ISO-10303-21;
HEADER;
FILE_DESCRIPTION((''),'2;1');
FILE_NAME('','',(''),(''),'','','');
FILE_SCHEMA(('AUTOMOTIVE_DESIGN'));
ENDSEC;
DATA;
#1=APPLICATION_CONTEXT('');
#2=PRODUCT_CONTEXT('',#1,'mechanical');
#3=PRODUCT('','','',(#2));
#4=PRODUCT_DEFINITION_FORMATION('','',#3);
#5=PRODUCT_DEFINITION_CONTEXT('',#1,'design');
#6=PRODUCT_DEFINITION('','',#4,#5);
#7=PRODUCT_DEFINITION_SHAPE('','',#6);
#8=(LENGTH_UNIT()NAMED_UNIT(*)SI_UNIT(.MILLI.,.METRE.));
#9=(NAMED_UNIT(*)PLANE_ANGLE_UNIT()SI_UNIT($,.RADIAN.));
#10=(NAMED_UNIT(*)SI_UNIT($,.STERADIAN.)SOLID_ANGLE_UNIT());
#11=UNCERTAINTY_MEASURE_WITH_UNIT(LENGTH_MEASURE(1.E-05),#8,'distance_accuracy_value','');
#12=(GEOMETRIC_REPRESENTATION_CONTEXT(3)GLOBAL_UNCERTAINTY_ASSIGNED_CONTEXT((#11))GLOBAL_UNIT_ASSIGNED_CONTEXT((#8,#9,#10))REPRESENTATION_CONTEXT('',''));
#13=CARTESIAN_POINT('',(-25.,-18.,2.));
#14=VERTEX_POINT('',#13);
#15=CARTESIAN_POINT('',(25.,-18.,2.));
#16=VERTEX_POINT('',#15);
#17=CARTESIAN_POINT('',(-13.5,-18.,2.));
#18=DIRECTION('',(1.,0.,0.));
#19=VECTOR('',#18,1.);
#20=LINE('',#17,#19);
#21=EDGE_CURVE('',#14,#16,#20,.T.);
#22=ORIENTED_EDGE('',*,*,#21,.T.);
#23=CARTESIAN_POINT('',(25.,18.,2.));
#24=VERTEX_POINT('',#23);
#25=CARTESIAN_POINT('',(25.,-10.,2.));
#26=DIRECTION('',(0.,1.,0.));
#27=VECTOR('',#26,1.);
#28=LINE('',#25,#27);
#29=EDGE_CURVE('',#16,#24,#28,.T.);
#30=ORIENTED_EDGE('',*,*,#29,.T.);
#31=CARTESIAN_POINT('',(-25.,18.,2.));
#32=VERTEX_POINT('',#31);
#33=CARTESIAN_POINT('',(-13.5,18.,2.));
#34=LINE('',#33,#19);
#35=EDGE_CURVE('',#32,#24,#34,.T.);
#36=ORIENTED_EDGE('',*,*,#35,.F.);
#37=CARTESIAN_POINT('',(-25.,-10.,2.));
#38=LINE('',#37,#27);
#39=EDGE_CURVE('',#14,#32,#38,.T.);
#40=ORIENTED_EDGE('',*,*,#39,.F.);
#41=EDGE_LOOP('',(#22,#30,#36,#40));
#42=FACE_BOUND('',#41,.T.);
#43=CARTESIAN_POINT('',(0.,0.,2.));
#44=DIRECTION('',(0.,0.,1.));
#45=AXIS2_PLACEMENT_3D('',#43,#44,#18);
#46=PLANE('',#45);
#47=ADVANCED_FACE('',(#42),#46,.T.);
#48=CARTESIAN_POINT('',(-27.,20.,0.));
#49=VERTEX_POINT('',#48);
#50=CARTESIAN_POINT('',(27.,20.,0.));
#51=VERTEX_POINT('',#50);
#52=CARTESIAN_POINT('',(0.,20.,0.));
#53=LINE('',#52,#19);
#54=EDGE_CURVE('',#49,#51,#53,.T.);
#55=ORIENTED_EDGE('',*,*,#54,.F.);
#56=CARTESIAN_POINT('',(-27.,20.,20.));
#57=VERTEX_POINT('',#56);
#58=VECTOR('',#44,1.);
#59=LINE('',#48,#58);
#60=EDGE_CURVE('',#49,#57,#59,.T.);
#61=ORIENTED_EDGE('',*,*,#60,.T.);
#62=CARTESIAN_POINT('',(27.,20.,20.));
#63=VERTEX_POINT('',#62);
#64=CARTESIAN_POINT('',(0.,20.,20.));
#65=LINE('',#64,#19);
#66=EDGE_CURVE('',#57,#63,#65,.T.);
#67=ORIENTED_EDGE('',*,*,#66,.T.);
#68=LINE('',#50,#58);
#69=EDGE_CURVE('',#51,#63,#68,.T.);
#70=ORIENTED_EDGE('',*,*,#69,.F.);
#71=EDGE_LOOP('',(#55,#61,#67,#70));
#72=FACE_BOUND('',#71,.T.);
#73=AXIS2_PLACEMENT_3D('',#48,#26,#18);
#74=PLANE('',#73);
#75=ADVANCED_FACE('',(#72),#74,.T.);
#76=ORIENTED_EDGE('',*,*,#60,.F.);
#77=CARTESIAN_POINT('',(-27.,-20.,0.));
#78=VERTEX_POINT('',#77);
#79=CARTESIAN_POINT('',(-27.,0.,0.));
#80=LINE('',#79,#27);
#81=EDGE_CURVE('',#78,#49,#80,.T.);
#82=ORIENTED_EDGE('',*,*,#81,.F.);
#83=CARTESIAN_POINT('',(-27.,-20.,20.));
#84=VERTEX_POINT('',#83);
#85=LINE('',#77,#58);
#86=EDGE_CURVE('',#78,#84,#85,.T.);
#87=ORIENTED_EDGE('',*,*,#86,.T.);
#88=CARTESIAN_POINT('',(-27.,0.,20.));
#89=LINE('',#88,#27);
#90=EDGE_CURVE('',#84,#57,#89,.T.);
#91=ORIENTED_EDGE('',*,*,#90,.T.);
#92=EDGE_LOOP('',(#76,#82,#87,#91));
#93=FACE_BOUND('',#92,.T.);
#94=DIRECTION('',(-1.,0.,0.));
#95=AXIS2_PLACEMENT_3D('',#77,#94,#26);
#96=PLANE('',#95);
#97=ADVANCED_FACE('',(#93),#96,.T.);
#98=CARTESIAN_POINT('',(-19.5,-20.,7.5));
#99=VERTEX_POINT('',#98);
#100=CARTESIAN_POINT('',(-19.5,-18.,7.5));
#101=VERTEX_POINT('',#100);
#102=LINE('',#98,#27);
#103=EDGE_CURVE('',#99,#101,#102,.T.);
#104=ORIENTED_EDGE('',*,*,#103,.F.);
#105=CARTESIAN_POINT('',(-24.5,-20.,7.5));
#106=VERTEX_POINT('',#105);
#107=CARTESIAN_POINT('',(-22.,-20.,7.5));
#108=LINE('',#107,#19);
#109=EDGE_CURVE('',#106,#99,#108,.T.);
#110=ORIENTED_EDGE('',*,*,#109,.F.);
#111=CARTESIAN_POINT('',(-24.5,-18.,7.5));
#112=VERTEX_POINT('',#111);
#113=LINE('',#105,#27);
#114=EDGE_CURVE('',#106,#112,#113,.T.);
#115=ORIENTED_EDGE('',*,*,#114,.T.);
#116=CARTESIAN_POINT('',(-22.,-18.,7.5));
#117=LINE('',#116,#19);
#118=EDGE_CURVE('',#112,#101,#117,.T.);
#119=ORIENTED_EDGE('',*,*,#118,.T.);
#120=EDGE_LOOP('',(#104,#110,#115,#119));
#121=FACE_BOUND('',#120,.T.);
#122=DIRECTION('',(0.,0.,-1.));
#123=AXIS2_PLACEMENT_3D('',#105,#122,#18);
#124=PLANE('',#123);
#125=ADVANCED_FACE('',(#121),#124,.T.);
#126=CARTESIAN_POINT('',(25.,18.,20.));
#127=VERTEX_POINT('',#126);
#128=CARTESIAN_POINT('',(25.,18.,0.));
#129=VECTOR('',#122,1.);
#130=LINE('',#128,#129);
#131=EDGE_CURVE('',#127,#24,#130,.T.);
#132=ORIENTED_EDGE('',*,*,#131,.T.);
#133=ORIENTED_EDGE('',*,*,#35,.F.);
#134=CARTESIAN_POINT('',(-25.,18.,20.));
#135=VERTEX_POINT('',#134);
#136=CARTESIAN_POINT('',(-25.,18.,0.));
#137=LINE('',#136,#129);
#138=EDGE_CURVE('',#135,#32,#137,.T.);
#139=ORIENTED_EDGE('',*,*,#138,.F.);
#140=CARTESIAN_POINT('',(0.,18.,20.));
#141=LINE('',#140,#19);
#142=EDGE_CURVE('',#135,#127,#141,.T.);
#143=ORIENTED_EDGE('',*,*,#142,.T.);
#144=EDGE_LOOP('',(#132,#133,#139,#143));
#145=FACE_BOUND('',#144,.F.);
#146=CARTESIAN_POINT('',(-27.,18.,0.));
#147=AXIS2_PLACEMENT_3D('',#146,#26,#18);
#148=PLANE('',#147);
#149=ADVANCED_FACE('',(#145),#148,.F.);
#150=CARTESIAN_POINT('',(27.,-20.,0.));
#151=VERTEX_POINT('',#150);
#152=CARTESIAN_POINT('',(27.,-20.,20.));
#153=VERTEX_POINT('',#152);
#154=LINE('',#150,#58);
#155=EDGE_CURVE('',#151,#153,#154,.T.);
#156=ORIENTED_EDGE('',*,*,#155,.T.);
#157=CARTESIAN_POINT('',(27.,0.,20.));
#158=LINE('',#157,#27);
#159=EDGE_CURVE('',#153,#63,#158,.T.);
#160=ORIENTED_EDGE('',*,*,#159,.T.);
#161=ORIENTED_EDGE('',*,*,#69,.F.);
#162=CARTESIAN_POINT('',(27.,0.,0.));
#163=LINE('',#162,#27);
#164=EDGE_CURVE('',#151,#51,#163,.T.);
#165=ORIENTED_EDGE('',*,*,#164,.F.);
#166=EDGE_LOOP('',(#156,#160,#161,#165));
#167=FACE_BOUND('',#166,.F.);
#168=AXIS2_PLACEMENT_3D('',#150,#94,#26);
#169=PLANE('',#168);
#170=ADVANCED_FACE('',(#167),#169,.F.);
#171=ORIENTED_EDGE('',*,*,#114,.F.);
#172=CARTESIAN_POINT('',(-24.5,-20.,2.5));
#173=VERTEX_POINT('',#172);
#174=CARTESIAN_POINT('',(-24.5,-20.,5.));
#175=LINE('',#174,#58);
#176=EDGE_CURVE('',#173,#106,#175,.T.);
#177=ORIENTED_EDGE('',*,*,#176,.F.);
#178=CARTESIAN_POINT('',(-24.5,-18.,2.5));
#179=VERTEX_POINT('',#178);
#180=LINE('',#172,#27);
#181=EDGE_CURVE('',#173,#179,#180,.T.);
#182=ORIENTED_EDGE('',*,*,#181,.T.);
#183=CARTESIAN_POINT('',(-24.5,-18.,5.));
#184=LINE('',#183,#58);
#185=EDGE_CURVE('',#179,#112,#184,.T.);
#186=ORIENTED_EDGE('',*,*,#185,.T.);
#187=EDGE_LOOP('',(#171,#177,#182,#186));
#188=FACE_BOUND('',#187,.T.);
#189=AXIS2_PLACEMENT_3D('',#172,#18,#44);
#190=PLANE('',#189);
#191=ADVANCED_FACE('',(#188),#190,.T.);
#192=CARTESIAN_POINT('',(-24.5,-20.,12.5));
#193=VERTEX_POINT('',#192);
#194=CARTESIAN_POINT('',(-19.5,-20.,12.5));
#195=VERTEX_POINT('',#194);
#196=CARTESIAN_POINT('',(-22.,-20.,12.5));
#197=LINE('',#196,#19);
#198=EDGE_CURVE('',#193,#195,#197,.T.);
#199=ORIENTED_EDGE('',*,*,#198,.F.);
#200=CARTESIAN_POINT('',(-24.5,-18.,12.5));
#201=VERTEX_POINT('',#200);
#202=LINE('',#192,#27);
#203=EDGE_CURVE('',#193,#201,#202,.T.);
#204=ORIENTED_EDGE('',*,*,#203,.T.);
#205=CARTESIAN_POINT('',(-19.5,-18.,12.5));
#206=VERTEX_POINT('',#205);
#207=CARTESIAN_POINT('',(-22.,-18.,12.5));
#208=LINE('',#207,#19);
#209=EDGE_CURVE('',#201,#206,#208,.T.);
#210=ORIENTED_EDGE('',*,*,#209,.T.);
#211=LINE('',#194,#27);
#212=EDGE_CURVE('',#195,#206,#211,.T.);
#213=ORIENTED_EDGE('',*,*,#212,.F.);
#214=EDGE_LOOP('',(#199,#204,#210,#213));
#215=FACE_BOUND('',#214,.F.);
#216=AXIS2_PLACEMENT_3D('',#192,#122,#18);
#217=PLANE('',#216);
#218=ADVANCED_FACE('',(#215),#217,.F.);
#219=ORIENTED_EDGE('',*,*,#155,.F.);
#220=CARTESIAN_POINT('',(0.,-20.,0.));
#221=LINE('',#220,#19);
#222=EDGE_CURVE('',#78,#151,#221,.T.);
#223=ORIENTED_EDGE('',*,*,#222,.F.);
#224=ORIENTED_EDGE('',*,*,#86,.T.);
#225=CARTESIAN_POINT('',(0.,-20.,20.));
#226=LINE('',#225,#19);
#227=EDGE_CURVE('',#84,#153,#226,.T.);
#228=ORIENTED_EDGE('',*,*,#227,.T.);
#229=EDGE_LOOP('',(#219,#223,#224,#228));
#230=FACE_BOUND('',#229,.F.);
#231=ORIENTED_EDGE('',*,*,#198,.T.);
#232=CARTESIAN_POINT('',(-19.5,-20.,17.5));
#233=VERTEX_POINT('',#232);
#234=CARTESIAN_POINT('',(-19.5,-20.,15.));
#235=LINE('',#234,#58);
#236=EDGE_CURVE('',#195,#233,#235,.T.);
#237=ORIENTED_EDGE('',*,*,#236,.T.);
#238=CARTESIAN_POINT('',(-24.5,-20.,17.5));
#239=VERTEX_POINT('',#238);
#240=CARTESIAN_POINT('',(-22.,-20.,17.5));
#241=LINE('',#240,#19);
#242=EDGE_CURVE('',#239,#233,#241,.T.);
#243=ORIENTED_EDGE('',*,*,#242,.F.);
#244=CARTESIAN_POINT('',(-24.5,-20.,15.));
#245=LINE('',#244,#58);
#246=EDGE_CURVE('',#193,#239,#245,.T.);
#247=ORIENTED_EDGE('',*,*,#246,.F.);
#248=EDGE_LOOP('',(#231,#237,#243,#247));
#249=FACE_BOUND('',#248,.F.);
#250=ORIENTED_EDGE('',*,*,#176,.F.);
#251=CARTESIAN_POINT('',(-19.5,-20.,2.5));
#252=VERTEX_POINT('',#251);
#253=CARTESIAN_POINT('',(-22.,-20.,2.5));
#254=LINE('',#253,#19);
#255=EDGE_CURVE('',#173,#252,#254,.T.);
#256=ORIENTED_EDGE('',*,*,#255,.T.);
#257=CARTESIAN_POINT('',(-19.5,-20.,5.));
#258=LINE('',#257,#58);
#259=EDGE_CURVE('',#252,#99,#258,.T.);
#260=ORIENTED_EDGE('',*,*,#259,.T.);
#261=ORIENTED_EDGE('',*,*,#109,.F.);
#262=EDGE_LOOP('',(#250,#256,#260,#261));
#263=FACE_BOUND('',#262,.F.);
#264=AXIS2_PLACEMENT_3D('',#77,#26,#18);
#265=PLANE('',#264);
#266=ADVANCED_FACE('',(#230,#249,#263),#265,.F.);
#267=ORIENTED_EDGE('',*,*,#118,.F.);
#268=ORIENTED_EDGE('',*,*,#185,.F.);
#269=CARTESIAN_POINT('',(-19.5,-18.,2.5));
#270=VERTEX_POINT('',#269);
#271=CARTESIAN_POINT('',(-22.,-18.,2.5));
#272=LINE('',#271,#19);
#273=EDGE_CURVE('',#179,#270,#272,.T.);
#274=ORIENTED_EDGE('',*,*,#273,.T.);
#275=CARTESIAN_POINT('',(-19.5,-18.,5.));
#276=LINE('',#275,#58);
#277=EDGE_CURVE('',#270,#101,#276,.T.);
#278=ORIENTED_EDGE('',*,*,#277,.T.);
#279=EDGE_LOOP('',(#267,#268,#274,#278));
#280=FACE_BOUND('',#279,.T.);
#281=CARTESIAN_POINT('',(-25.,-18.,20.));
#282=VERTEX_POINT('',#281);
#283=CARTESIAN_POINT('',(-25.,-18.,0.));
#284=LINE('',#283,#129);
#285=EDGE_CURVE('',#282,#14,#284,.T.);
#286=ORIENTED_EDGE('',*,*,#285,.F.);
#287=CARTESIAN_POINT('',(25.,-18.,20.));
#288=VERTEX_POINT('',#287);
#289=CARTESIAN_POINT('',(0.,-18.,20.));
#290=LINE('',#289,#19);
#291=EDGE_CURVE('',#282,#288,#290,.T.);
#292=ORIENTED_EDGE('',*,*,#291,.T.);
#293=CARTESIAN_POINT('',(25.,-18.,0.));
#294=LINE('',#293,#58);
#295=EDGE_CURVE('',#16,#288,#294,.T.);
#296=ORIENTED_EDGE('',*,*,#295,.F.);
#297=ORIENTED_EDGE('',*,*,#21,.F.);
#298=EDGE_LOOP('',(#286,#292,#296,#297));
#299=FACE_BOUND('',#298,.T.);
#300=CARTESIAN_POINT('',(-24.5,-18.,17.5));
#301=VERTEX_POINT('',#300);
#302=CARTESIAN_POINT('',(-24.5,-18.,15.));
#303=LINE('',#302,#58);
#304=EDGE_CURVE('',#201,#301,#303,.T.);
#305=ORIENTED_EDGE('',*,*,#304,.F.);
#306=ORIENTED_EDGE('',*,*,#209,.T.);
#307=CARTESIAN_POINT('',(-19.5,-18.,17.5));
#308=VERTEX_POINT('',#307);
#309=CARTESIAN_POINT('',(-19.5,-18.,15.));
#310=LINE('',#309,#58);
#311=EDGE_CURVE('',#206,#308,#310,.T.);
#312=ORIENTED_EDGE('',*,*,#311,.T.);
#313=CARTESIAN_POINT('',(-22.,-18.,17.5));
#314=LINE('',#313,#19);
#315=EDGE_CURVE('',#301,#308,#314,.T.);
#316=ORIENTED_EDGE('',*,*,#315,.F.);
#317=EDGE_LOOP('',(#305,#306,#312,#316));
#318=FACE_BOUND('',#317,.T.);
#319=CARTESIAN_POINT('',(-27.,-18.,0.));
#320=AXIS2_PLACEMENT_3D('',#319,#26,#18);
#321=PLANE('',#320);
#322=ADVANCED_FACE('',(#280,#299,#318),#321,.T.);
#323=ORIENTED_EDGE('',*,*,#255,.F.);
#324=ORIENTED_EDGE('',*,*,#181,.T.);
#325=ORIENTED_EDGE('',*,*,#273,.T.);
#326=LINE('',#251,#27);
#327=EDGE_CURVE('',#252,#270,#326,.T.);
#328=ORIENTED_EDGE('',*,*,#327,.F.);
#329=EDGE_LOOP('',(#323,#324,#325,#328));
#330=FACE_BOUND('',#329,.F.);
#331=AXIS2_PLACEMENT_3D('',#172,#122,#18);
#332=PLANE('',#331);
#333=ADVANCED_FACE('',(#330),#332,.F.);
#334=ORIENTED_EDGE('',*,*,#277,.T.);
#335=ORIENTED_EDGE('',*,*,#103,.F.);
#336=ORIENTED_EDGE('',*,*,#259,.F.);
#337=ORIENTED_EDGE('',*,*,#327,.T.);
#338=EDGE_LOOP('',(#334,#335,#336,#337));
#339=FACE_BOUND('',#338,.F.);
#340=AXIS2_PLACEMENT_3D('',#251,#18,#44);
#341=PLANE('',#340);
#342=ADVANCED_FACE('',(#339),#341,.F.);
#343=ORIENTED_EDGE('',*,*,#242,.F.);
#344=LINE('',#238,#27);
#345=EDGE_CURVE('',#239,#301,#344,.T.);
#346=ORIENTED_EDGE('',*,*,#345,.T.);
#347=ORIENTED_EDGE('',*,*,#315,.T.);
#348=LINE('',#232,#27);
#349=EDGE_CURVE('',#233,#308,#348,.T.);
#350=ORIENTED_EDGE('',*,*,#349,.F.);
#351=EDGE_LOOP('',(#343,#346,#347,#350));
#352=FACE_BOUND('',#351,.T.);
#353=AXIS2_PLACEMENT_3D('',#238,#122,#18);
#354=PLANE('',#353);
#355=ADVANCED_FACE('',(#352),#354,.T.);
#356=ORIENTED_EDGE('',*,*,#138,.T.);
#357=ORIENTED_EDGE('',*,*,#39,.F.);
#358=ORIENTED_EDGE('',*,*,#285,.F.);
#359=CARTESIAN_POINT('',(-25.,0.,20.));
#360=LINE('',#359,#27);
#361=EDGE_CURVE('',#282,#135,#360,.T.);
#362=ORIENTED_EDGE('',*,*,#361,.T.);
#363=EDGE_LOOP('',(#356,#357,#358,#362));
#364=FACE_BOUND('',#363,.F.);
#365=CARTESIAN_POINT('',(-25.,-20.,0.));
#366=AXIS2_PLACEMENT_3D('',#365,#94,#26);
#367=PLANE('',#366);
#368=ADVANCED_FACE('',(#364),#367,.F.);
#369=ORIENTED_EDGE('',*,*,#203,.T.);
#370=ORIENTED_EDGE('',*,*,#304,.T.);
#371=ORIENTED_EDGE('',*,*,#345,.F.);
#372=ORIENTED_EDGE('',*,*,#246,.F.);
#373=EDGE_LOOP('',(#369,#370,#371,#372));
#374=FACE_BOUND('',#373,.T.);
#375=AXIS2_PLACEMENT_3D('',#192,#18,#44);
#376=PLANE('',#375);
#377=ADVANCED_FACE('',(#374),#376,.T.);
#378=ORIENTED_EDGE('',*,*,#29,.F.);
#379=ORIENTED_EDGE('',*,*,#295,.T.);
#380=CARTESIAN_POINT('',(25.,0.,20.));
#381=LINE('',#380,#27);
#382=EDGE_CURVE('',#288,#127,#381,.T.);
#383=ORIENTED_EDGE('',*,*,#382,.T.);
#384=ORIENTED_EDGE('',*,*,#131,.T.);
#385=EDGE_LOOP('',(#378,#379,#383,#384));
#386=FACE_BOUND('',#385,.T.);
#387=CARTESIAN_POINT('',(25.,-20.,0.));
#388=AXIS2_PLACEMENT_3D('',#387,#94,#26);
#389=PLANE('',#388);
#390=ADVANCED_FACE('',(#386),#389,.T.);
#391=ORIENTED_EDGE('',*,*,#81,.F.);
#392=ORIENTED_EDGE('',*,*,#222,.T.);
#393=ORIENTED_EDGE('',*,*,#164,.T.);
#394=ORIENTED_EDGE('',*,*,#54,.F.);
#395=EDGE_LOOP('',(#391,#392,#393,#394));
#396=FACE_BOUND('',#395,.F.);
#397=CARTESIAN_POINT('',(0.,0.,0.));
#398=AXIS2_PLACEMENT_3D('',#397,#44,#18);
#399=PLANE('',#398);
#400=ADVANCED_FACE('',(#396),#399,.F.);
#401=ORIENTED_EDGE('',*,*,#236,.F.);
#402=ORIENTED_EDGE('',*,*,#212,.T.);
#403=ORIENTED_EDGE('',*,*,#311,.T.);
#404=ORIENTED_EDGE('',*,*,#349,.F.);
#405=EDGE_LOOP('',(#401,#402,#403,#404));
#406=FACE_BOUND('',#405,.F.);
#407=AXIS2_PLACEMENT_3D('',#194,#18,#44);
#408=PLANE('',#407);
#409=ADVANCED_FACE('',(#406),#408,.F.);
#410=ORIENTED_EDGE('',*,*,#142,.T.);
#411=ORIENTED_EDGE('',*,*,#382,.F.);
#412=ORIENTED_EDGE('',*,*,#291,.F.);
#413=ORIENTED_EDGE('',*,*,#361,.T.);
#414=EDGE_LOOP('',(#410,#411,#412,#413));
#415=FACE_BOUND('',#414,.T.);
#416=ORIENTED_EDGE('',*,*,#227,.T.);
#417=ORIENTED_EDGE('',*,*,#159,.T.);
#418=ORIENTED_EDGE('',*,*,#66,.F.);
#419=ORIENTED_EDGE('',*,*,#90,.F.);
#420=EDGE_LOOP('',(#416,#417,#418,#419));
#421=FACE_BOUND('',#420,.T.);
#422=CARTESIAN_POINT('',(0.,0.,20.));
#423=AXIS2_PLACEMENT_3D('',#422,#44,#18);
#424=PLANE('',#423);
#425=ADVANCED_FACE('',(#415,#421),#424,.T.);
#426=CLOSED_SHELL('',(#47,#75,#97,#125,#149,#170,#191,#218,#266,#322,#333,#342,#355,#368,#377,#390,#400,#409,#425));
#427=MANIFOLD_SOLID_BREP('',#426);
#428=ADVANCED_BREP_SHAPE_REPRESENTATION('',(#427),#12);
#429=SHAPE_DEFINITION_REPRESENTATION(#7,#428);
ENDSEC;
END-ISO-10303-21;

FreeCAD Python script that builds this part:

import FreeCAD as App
import Part
import Sketcher
Q = App.Units.Quantity


def faces_at(feature, points):
    """Names of the faces that lie closest to the given points."""
    faces = feature.Shape.Faces
    near = lambda p: min(range(len(faces)), key=lambda i: faces[i].distToShape(Part.Vertex(*p))[0])
    return sorted({f"Face{near(p) + 1}" for p in points})

doc = App.newDocument("Part")
body = doc.addObject("PartDesign::Body", "Body")

# Sketch on XY plane
sketch1 = body.newObject("Sketcher::SketchObject", "Sketch")
sketch1.AttachmentSupport = (doc.getObject("XY_Plane"), [""])
sketch1.MapMode = "FlatFace"
sketch1.addGeometry([
    Part.LineSegment(App.Vector(-27, 20, 0), App.Vector(-27, -20, 0)),
    Part.LineSegment(App.Vector(-27, -20, 0), App.Vector(27, -20, 0)),
    Part.LineSegment(App.Vector(27, -20, 0), App.Vector(27, 20, 0)),
    Part.LineSegment(App.Vector(27, 20, 0), App.Vector(-27, 20, 0)),
], False)
sketch1.addConstraint([
    Sketcher.Constraint("Coincident", 0, 2, 1, 1),
    Sketcher.Constraint("Coincident", 1, 2, 2, 1),
    Sketcher.Constraint("Coincident", 2, 2, 3, 1),
    Sketcher.Constraint("Coincident", 3, 2, 0, 1),
    Sketcher.Constraint("Vertical", 0),
    Sketcher.Constraint("Horizontal", 1),
    Sketcher.Constraint("Vertical", 2),
    Sketcher.Constraint("Horizontal", 3),
    Sketcher.Constraint("Symmetric", 0, 2, 2, 2, -1, 1),
    Sketcher.Constraint("DistanceX", 1, 1, 1, 2, Q("54 mm")),
    Sketcher.Constraint("DistanceY", 0, 2, 0, 1, Q("40 mm")),
])
pad1 = body.newObject("PartDesign::Pad", "Pad")
pad1.Profile = sketch1
pad1.Length = 20
doc.recompute()

thickness = body.newObject("PartDesign::Thickness", "Thickness")
thickness.Base = (pad1, faces_at(pad1, [(0, 0, 20)]))
thickness.Value = 2
thickness.Reversed = True
thickness.Join = "Arc"

# Sketch on XZ plane
sketch2 = body.newObject("Sketcher::SketchObject", "Sketch001")
sketch2.AttachmentSupport = (doc.getObject("XZ_Plane"), [""])
sketch2.MapMode = "FlatFace"
sketch2.AttachmentOffset = App.Placement(App.Vector(0, 0, 20), App.Rotation())
sketch2.addGeometry([
    Part.LineSegment(App.Vector(-24.5, 17.5, 0), App.Vector(-24.5, 12.5, 0)),  # 0
    Part.LineSegment(App.Vector(-24.5, 12.5, 0), App.Vector(-19.5, 12.5, 0)),  # 1
    Part.LineSegment(App.Vector(-19.5, 12.5, 0), App.Vector(-19.5, 17.5, 0)),  # 2
    Part.LineSegment(App.Vector(-19.5, 17.5, 0), App.Vector(-24.5, 17.5, 0)),  # 3
    Part.LineSegment(App.Vector(-24.5, 7.5, 0), App.Vector(-24.5, 2.5, 0)),  # 4
    Part.LineSegment(App.Vector(-24.5, 2.5, 0), App.Vector(-19.5, 2.5, 0)),  # 5
    Part.LineSegment(App.Vector(-19.5, 2.5, 0), App.Vector(-19.5, 7.5, 0)),  # 6
    Part.LineSegment(App.Vector(-19.5, 7.5, 0), App.Vector(-24.5, 7.5, 0)),  # 7
], False)
sketch2.addConstraint([
    Sketcher.Constraint("Coincident", 0, 2, 1, 1),
    Sketcher.Constraint("Coincident", 1, 2, 2, 1),
    Sketcher.Constraint("Coincident", 2, 2, 3, 1),
    Sketcher.Constraint("Coincident", 3, 2, 0, 1),
    Sketcher.Constraint("Coincident", 4, 2, 5, 1),
    Sketcher.Constraint("Coincident", 5, 2, 6, 1),
    Sketcher.Constraint("Coincident", 6, 2, 7, 1),
    Sketcher.Constraint("Coincident", 7, 2, 4, 1),
    Sketcher.Constraint("Vertical", 0),
    Sketcher.Constraint("Horizontal", 1),
    Sketcher.Constraint("Vertical", 2),
    Sketcher.Constraint("Horizontal", 3),
    Sketcher.Constraint("Vertical", 4),
    Sketcher.Constraint("Horizontal", 5),
    Sketcher.Constraint("Vertical", 6),
    Sketcher.Constraint("Horizontal", 7),
    Sketcher.Constraint("Vertical", 3, 2, 4, 2),
    Sketcher.Constraint("Vertical", 2, 2, 5, 2),
    Sketcher.Constraint("Equal", 7, 0),
    Sketcher.Constraint("Equal", 2, 4),
    Sketcher.Constraint("DistanceX", 1, 1, 1, 2, Q("5 mm")),
    Sketcher.Constraint("DistanceY", 4, 2, 0, 2, Q("10 mm")),
    Sketcher.Constraint("DistanceX", 0, 2, -1, 1, Q("24.5 mm")),
    Sketcher.Constraint("DistanceY", -1, 1, 0, 2, Q("12.5 mm")),
])
pocket1 = body.newObject("PartDesign::Pocket", "Pocket")
pocket1.Profile = sketch2
pocket1.Length = 2

doc.recompute()
